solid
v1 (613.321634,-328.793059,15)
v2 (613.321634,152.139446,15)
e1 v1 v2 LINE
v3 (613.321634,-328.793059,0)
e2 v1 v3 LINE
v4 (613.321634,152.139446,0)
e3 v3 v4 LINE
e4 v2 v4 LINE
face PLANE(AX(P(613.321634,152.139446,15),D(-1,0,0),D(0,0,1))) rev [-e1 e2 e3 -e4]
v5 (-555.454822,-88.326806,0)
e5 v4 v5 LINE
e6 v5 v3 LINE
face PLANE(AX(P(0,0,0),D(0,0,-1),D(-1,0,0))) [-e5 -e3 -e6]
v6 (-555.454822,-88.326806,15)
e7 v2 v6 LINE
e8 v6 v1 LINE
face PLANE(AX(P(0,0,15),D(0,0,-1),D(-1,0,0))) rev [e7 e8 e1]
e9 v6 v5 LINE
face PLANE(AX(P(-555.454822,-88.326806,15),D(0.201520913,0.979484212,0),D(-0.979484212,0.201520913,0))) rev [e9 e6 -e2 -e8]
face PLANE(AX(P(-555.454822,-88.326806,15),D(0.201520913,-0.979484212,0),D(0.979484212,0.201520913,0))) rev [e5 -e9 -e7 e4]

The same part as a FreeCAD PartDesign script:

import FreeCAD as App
import Part
import Sketcher
from FreeCAD import Vector

doc = App.newDocument("Part")
body = doc.addObject("PartDesign::Body", "Body")

sketch1 = body.newObject("Sketcher::SketchObject", "Sketch")
sketch1.AttachmentSupport = (doc.getObject("XY_Plane"), [""])
sketch1.MapMode = "FlatFace"
sketch1.addGeometry([
    Part.LineSegment(Vector(613, -329, 0), Vector(613, 152, 0)),
    Part.LineSegment(Vector(613, 152, 0), Vector(-555, -88, 0)),
    Part.LineSegment(Vector(-555, -88, 0), Vector(613, -329, 0)),
], False)
sketch1.addConstraint([
    Sketcher.Constraint("Coincident", 0, 2, 1, 1),
    Sketcher.Constraint("Coincident", 1, 2, 2, 1),
    Sketcher.Constraint("Coincident", 2, 2, 0, 1),
    Sketcher.Constraint("Vertical", 0),
    Sketcher.Constraint("Equal", 1, 2),
    Sketcher.Constraint("DistanceY", 0, 1, 0, 2, 480.932505),
    Sketcher.Constraint("DistanceY", 2, 2, -1, 1, 328.793059),
    Sketcher.Constraint("Distance", 1, 1193.257065),
    Sketcher.Constraint("DistanceX", -1, 1, 0, 2, 613.321634),
])
pad1 = body.newObject("PartDesign::Pad", "Pad")
pad1.Profile = sketch1
pad1.Length = 15

doc.recompute()
